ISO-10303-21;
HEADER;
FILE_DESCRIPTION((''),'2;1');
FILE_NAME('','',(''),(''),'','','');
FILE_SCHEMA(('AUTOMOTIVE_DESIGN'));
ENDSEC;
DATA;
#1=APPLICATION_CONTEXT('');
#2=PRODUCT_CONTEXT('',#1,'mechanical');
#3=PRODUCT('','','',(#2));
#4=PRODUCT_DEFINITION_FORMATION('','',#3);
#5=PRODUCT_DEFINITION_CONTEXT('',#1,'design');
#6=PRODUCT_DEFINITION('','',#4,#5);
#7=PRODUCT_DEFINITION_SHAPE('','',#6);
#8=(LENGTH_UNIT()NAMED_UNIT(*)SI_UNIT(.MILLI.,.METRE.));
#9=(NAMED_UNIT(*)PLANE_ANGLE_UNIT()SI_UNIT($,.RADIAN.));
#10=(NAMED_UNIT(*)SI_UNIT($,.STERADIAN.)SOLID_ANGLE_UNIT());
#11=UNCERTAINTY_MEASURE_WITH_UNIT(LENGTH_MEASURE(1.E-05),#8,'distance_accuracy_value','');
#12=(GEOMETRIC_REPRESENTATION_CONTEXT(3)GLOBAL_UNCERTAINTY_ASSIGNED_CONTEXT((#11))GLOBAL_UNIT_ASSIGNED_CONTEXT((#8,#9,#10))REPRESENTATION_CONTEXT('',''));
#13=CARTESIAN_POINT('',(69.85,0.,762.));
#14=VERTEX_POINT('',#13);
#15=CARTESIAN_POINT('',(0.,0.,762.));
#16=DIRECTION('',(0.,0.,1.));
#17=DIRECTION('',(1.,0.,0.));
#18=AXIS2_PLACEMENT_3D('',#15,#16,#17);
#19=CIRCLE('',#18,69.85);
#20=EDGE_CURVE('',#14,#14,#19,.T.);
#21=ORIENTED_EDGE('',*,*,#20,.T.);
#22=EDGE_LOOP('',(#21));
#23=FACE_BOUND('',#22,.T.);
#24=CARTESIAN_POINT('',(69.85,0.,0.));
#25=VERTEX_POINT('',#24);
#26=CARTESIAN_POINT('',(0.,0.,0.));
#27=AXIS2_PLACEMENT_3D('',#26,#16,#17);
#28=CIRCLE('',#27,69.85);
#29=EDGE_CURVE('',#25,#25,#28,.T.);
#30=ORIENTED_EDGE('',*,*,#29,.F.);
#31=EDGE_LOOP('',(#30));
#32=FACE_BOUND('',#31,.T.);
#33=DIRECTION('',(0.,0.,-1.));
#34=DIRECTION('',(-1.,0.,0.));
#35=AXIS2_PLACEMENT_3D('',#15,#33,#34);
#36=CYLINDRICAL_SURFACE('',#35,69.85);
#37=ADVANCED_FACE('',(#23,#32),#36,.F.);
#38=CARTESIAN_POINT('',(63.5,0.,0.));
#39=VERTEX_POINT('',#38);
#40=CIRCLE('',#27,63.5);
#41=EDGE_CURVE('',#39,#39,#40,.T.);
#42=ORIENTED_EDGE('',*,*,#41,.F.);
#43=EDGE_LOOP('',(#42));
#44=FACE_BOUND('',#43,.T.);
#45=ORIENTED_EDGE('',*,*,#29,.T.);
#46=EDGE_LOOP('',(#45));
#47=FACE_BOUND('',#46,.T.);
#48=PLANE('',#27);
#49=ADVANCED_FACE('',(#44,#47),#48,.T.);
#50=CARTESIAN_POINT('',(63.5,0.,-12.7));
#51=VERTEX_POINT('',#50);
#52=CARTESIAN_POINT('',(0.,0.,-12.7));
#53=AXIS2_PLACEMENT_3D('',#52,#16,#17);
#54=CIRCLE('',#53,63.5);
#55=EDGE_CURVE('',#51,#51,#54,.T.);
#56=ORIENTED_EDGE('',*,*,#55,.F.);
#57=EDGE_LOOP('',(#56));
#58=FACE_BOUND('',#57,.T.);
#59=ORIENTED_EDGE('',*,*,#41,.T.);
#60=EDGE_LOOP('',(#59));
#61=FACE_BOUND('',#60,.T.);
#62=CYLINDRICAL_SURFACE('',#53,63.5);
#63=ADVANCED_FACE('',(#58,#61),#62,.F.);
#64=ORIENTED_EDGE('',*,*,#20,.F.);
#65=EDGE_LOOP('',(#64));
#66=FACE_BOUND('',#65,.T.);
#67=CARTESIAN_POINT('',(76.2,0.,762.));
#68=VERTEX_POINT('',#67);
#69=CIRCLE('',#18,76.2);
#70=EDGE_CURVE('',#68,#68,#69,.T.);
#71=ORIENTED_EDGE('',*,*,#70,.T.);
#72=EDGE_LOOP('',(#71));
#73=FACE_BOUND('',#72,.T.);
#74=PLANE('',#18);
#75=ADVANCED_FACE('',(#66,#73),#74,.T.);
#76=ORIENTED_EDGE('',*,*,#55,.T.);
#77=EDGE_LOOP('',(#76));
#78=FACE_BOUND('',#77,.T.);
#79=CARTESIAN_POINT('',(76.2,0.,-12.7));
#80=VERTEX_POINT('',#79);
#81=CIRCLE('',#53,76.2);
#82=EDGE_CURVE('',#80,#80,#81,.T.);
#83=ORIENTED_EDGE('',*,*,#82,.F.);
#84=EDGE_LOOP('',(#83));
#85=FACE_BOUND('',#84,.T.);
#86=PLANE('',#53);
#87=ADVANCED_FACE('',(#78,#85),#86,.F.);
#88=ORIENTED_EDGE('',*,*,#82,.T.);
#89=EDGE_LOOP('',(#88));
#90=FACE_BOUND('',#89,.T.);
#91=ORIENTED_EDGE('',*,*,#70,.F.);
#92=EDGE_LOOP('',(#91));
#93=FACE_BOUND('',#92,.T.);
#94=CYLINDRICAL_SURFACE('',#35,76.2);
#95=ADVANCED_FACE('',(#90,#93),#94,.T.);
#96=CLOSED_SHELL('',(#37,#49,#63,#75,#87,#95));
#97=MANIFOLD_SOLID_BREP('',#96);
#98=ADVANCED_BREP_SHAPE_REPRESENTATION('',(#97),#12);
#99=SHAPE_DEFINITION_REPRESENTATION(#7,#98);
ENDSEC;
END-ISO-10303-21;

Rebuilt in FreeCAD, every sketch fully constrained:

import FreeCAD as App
import Part
import Sketcher
Q = App.Units.Quantity

doc = App.newDocument("Part")
body = doc.addObject("PartDesign::Body", "Body")

# Sketch on XY plane
sketch1 = body.newObject("Sketcher::SketchObject", "Sketch")
sketch1.AttachmentSupport = (doc.getObject("XY_Plane"), [""])
sketch1.MapMode = "FlatFace"
sketch1.addGeometry(Part.Circle(App.Vector(0, 0, 0), App.Vector(0, 0, 1), 76.2), False)
sketch1.addGeometry(Part.Circle(App.Vector(0, 0, 0), App.Vector(0, 0, 1), 69.85), False)
sketch1.addConstraint(Sketcher.Constraint("Coincident", 0, 3, -1, 1))
sketch1.addConstraint(Sketcher.Constraint("Coincident", 1, 3, -1, 1))
sketch1.addConstraint(Sketcher.Constraint("Diameter", 0, Q("6 in")))
sketch1.addConstraint(Sketcher.Constraint("Diameter", 1, Q("5.5 in")))
pad1 = body.newObject("PartDesign::Pad", "Pad")
pad1.Profile = sketch1
pad1.Length = Q("30 in")

# Sketch on XY plane
sketch2 = body.newObject("Sketcher::SketchObject", "Sketch001")
sketch2.AttachmentSupport = (doc.getObject("XY_Plane"), [""])
sketch2.MapMode = "FlatFace"
sketch2.addGeometry(Part.Circle(App.Vector(0, 0, 0), App.Vector(0, 0, 1), 76.2), False)
sketch2.addGeometry(Part.Circle(App.Vector(0, 0, 0), App.Vector(0, 0, 1), 63.5), False)
sketch2.addConstraint(Sketcher.Constraint("Coincident", 0, 3, -1, 1))
sketch2.addConstraint(Sketcher.Constraint("Coincident", 1, 3, -1, 1))
sketch2.addConstraint(Sketcher.Constraint("Diameter", 0, Q("6 in")))
sketch2.addConstraint(Sketcher.Constraint("Diameter", 1, Q("5 in")))
pad2 = body.newObject("PartDesign::Pad", "Pad001")
pad2.Profile = sketch2
pad2.Length = Q("0.5 in")
pad2.Reversed = True

doc.recompute()
